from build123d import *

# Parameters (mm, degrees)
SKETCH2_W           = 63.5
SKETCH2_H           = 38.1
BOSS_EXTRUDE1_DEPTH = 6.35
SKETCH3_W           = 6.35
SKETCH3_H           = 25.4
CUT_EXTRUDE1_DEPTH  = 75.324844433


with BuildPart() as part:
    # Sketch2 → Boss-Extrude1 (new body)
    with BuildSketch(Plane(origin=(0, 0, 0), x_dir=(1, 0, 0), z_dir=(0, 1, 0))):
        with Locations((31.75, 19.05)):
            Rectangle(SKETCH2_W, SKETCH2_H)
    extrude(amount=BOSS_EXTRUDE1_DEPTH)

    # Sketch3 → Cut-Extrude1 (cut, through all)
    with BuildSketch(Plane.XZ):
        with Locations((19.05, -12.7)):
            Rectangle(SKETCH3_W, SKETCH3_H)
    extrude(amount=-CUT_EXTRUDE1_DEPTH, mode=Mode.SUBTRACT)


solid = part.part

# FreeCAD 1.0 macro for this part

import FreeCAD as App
import Part
import Sketcher
Q = App.Units.Quantity

doc = App.newDocument("Part")
body = doc.addObject("PartDesign::Body", "Body")

# Sketch on XZ plane
sketch1 = body.newObject("Sketcher::SketchObject", "Sketch")
sketch1.AttachmentSupport = (doc.getObject("XZ_Plane"), [""])
sketch1.MapMode = "FlatFace"
sketch1.addGeometry([
    Part.LineSegment(App.Vector(0, -38, 0), App.Vector(0, 0, 0)),
    Part.LineSegment(App.Vector(0, 0, 0), App.Vector(64, 0, 0)),
    Part.LineSegment(App.Vector(64, 0, 0), App.Vector(64, -38, 0)),
    Part.LineSegment(App.Vector(64, -38, 0), App.Vector(0, -38, 0)),
], False)
sketch1.addConstraint([
    Sketcher.Constraint("Coincident", 0, 2, 1, 1),
    Sketcher.Constraint("Coincident", 1, 2, 2, 1),
    Sketcher.Constraint("Coincident", 2, 2, 3, 1),
    Sketcher.Constraint("Coincident", 3, 2, 0, 1),
    Sketcher.Constraint("Vertical", 0),
    Sketcher.Constraint("Horizontal", 1),
    Sketcher.Constraint("Vertical", 2),
    Sketcher.Constraint("Horizontal", 3),
    Sketcher.Constraint("Coincident", 0, 2, -1, 1),
    Sketcher.Constraint("DistanceX", 1, 1, 1, 2, Q("2.5 in")),
    Sketcher.Constraint("DistanceY", 0, 1, 0, 2, Q("1.5 in")),
])
pad1 = body.newObject("PartDesign::Pad", "Pad")
pad1.Profile = sketch1
pad1.Length = Q("0.25 in")
pad1.Reversed = True

# Sketch on XZ plane
sketch2 = body.newObject("Sketcher::SketchObject", "Sketch001")
sketch2.AttachmentSupport = (doc.getObject("XZ_Plane"), [""])
sketch2.MapMode = "FlatFace"
sketch2.addGeometry([
    Part.LineSegment(App.Vector(16, 0, 0), App.Vector(16, -25, 0)),
    Part.LineSegment(App.Vector(16, -25, 0), App.Vector(22, -25, 0)),
    Part.LineSegment(App.Vector(22, -25, 0), App.Vector(22, 0, 0)),
    Part.LineSegment(App.Vector(22, 0, 0), App.Vector(16, 0, 0)),
], False)
sketch2.addConstraint([
    Sketcher.Constraint("Coincident", 0, 2, 1, 1),
    Sketcher.Constraint("Coincident", 1, 2, 2, 1),
    Sketcher.Constraint("Coincident", 2, 2, 3, 1),
    Sketcher.Constraint("Coincident", 3, 2, 0, 1),
    Sketcher.Constraint("Vertical", 0),
    Sketcher.Constraint("Horizontal", 1),
    Sketcher.Constraint("Vertical", 2),
    Sketcher.Constraint("Horizontal", 3),
    Sketcher.Constraint("PointOnObject", 2, 2, -1),
    Sketcher.Constraint("DistanceY", 0, 2, 0, 1, Q("1 in")),
    Sketcher.Constraint("DistanceX", 1, 1, 1, 2, Q("0.25 in")),
    Sketcher.Constraint("DistanceX", -1, 1, 0, 2, Q("0.625 in")),
])
pocket1 = body.newObject("PartDesign::Pocket", "Pocket")
pocket1.Profile = sketch2
pocket1.Type = "ThroughAll"

doc.recompute()
